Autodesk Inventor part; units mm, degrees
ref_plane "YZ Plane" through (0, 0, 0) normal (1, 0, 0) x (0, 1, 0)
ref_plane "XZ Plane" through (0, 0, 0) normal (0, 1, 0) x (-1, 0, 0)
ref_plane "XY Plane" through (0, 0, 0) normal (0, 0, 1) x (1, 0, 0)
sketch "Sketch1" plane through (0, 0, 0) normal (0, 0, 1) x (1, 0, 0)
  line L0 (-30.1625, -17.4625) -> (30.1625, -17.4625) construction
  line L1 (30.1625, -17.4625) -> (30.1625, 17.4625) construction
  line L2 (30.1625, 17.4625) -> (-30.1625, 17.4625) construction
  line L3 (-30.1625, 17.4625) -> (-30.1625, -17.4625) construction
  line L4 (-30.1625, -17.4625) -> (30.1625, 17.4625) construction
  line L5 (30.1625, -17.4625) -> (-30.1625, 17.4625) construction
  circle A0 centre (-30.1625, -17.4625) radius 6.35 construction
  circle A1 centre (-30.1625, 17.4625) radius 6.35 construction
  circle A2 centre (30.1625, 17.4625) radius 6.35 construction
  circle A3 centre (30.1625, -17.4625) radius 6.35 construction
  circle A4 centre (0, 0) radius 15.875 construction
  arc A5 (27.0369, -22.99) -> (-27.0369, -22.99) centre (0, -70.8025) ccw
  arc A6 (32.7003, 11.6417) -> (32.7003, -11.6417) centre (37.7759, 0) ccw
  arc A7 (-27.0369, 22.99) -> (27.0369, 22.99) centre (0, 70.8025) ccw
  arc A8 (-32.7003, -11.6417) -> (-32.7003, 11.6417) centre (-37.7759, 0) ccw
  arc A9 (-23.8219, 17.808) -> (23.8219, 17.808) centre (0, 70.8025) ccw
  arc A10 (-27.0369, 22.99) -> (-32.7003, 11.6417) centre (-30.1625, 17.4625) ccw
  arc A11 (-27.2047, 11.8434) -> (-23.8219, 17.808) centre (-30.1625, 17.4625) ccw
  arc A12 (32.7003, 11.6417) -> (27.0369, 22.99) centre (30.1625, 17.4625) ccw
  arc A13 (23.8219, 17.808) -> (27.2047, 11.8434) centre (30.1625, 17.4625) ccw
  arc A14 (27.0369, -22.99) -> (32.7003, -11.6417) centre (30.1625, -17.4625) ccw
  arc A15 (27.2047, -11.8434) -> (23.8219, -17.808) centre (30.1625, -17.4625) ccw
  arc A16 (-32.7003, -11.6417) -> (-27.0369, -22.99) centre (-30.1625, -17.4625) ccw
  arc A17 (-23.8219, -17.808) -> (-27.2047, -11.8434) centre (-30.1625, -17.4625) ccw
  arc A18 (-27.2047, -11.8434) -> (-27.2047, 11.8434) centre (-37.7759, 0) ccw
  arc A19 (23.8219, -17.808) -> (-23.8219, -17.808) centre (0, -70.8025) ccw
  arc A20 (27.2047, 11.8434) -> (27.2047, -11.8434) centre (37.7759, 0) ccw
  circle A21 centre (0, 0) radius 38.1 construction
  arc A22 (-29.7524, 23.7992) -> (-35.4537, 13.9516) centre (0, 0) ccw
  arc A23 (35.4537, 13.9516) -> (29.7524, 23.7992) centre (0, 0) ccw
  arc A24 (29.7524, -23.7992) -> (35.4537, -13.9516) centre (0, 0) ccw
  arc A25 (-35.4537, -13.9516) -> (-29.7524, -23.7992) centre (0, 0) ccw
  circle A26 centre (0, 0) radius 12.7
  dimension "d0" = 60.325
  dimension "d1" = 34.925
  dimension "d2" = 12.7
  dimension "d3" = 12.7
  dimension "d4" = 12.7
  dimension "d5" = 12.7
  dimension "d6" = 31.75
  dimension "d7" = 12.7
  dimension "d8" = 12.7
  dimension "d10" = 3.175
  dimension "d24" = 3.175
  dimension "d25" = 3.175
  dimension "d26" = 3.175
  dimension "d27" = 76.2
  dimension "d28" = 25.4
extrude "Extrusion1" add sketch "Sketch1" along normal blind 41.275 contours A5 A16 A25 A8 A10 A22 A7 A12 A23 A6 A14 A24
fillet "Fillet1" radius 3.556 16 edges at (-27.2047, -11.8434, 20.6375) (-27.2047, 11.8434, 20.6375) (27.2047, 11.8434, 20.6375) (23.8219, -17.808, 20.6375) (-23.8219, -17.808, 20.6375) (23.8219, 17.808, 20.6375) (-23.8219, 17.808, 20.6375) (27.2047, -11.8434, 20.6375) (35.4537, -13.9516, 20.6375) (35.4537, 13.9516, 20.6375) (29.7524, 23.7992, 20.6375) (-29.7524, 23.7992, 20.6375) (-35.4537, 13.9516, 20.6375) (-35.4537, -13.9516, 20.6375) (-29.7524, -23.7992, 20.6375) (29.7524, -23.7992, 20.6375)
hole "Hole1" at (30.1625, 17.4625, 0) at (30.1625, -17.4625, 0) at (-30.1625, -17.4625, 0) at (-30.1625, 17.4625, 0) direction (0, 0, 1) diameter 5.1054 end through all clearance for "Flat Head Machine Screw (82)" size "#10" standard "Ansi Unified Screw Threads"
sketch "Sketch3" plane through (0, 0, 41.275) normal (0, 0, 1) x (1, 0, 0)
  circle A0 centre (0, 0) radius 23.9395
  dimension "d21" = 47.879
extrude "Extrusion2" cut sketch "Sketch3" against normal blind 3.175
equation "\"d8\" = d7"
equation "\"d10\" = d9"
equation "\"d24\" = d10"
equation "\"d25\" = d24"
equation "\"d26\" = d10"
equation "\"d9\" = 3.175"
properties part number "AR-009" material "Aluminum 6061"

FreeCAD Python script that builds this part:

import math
import FreeCAD as App
import Part
import Sketcher

V = App.Vector
Q = App.Units.Quantity


def edges_at(feature, points):
    """Names of the edges that pass closest to the given points."""
    edges = feature.Shape.Edges
    near = lambda p: min(range(len(edges)), key=lambda i: edges[i].distToShape(Part.Vertex(*p))[0])
    return sorted({f"Edge{near(p) + 1}" for p in points})

doc = App.newDocument("Part")
body = doc.addObject("PartDesign::Body", "Body")

# Sketch on XY plane
sketch1 = body.newObject("Sketcher::SketchObject", "Sketch")
sketch1.AttachmentSupport = (doc.getObject("XY_Plane"), [""])
sketch1.MapMode = "FlatFace"
sketch1.addGeometry([
    Part.ArcOfCircle(Part.Circle(V(0, -70.8025, 0), V(0, 0, 1), 54.92749), math.radians(60.512811), math.radians(119.487189)),  # 0
    Part.ArcOfCircle(Part.Circle(V(30.1625, -17.4625, 0), V(0, 0, 1), 6.35), math.radians(-119.486579), math.radians(-93.702917)),  # 1
    Part.ArcOfCircle(Part.Circle(V(-0.002306, 0.001577, 0), V(0, 0, 1), 38.102749), math.radians(-38.6563), math.radians(-21.481371)),  # 2
    Part.ArcOfCircle(Part.Circle(V(30.1625, -17.4625, 0), V(0, 0, 1), 6.35), math.radians(33.565693), math.radians(66.443367)),  # 3
    Part.ArcOfCircle(Part.Circle(V(37.7759, 0, 0), V(0, 0, 1), 12.700035), math.radians(113.556452), math.radians(246.443548)),  # 4
    Part.ArcOfCircle(Part.Circle(V(30.1625, 17.4625, 0), V(0, 0, 1), 6.35), math.radians(-66.443367), math.radians(-33.565693)),  # 5
    Part.ArcOfCircle(Part.Circle(V(0.002515, 0.001215, 0), V(0, 0, 1), 38.097241), math.radians(21.48012), math.radians(38.657551)),  # 6
    Part.ArcOfCircle(Part.Circle(V(30.1625, 17.4625, 0), V(0, 0, 1), 6.35), math.radians(93.702917), math.radians(119.486579)),  # 7
    Part.ArcOfCircle(Part.Circle(V(0, 70.8025, 0), V(0, 0, 1), 54.92749), math.radians(-119.487189), math.radians(-60.512811)),  # 8
    Part.ArcOfCircle(Part.Circle(V(-30.1625, 17.4625, 0), V(0, 0, 1), 6.35), math.radians(60.513421), math.radians(86.297083)),  # 9
    Part.ArcOfCircle(Part.Circle(V(0.002306, -0.001577, 0), V(0, 0, 1), 38.102749), math.radians(141.3437), math.radians(158.518629)),  # 10
    Part.ArcOfCircle(Part.Circle(V(-30.1625, 17.4625, 0), V(0, 0, 1), 6.35), math.radians(-146.434307), math.radians(-113.556633)),  # 11
    Part.ArcOfCircle(Part.Circle(V(-37.7759, 0, 0), V(0, 0, 1), 12.700035), math.radians(-66.443548), math.radians(66.443548)),  # 12
    Part.ArcOfCircle(Part.Circle(V(-30.1625, -17.4625, 0), V(0, 0, 1), 6.35), math.radians(113.556633), math.radians(146.434307)),  # 13
    Part.ArcOfCircle(Part.Circle(V(-0.002515, -0.001215, 0), V(0, 0, 1), 38.097241), math.radians(-158.51988), math.radians(-141.342449)),  # 14
    Part.ArcOfCircle(Part.Circle(V(-30.1625, -17.4625, 0), V(0, 0, 1), 6.35), math.radians(-86.297083), math.radians(-60.513421)),  # 15
    Part.ArcOfCircle(Part.Circle(V(-30.1625, 17.4625, 0), V(0, 0, 1), 6.35), math.radians(-62.238434), math.radians(3.118969)),  # 16
    Part.ArcOfCircle(Part.Circle(V(0, 70.8025, 0), V(0, 0, 1), 58.102495), math.radians(-114.204702), math.radians(-65.795298)),  # 17
    Part.ArcOfCircle(Part.Circle(V(30.1625, 17.4625, 0), V(0, 0, 1), 6.350006), math.radians(176.881031), math.radians(242.238434)),  # 18
    Part.ArcOfCircle(Part.Circle(V(37.7759, 0, 0), V(0, 0, 1), 15.875024), math.radians(131.751512), math.radians(228.248488)),  # 19
    Part.ArcOfCircle(Part.Circle(V(30.1625, -17.4625, 0), V(0, 0, 1), 6.35), math.radians(117.761566), math.radians(183.118969)),  # 20
    Part.ArcOfCircle(Part.Circle(V(0, -70.8025, 0), V(0, 0, 1), 58.102495), math.radians(65.795298), math.radians(114.204702)),  # 21
    Part.ArcOfCircle(Part.Circle(V(-30.1625, -17.4625, 0), V(0, 0, 1), 6.350006), math.radians(-3.118969), math.radians(62.238434)),  # 22
    Part.ArcOfCircle(Part.Circle(V(-37.7759, 0, 0), V(0, 0, 1), 15.875024), math.radians(-48.248488), math.radians(48.248488)),  # 23
], False)
sketch1.addConstraint([
    Sketcher.Constraint("Tangent", 0, 1, 1, 1),
    Sketcher.Constraint("Coincident", 1, 2, 2, 1),
    Sketcher.Constraint("Coincident", 2, 2, 3, 1),
    Sketcher.Constraint("Tangent", 3, 2, 4, 2),
    Sketcher.Constraint("Tangent", 4, 1, 5, 1),
    Sketcher.Constraint("Coincident", 5, 2, 6, 1),
    Sketcher.Constraint("Coincident", 6, 2, 7, 1),
    Sketcher.Constraint("Tangent", 7, 2, 8, 2),
    Sketcher.Constraint("Tangent", 8, 1, 9, 1),
    Sketcher.Constraint("Coincident", 9, 2, 10, 1),
    Sketcher.Constraint("Coincident", 10, 2, 11, 1),
    Sketcher.Constraint("Tangent", 11, 2, 12, 2),
    Sketcher.Constraint("Tangent", 12, 1, 13, 1),
    Sketcher.Constraint("Coincident", 13, 2, 14, 1),
    Sketcher.Constraint("Coincident", 14, 2, 15, 1),
    Sketcher.Constraint("Tangent", 15, 2, 0, 2),
    Sketcher.Constraint("Coincident", 16, 2, 17, 1),
    Sketcher.Constraint("Coincident", 17, 2, 18, 1),
    Sketcher.Constraint("Coincident", 18, 2, 19, 1),
    Sketcher.Constraint("Coincident", 19, 2, 20, 1),
    Sketcher.Constraint("Coincident", 20, 2, 21, 1),
    Sketcher.Constraint("Coincident", 21, 2, 22, 1),
    Sketcher.Constraint("Coincident", 22, 2, 23, 1),
    Sketcher.Constraint("Coincident", 23, 2, 16, 1),
    Sketcher.Constraint("Coincident", 3, 3, 1, 3),
    Sketcher.Constraint("Coincident", 7, 3, 5, 3),
    Sketcher.Constraint("Coincident", 11, 3, 9, 3),
    Sketcher.Constraint("Coincident", 15, 3, 13, 3),
    Sketcher.Constraint("Coincident", 16, 3, 9, 3),
    Sketcher.Constraint("Coincident", 17, 3, 8, 3),
    Sketcher.Constraint("Coincident", 18, 3, 5, 3),
    Sketcher.Constraint("Coincident", 19, 3, 4, 3),
    Sketcher.Constraint("Coincident", 20, 3, 1, 3),
    Sketcher.Constraint("Coincident", 21, 3, 0, 3),
    Sketcher.Constraint("Coincident", 22, 3, 13, 3),
    Sketcher.Constraint("Coincident", 23, 3, 12, 3),
    Sketcher.Constraint("Equal", 1, 3),
    Sketcher.Constraint("Equal", 3, 5),
    Sketcher.Constraint("Equal", 5, 7),
    Sketcher.Constraint("Equal", 0, 8),
    Sketcher.Constraint("Equal", 7, 9),
    Sketcher.Constraint("Equal", 2, 10),
    Sketcher.Constraint("Equal", 9, 11),
    Sketcher.Constraint("Equal", 4, 12),
    Sketcher.Constraint("Equal", 11, 13),
    Sketcher.Constraint("Equal", 6, 14),
    Sketcher.Constraint("Equal", 13, 15),
    Sketcher.Constraint("Equal", 15, 16),
    Sketcher.Constraint("Equal", 16, 18),
    Sketcher.Constraint("Equal", 18, 20),
    Sketcher.Constraint("Equal", 17, 21),
    Sketcher.Constraint("Equal", 20, 22),
    Sketcher.Constraint("Equal", 19, 23),
    Sketcher.Constraint("Symmetric", 0, 3, 8, 3, -1, 1),
    Sketcher.Constraint("Symmetric", 2, 3, 10, 3, -1, 1),
    Sketcher.Constraint("Symmetric", 4, 3, 12, 3, -1, 1),
    Sketcher.Constraint("Symmetric", 6, 3, 14, 3, -1, 1),
    Sketcher.Constraint("Symmetric", 5, 3, 9, 3, -2),
    Sketcher.Constraint("Horizontal", 6, 2, 9, 2),
    Sketcher.Constraint("Horizontal", 5, 2, 10, 2),
    Sketcher.Constraint("Radius", 4, Q("0.5 in")),
    Sketcher.Constraint("Radius", 1, Q("0.25 in")),
    Sketcher.Constraint("Radius", 19, Q("0.625 in")),
    Sketcher.Constraint("DistanceY", 1, 3, 5, 3, Q("1.375 in")),
    Sketcher.Constraint("DistanceX", 9, 3, 5, 3, Q("2.375 in")),
    Sketcher.Constraint("DistanceX", 10, 3, 6, 3, Q("0 in")),
    Sketcher.Constraint("Radius", 0, Q("2.1625 in")),
    Sketcher.Constraint("Radius", 2, Q("1.5001 in")),
    Sketcher.Constraint("Radius", 6, Q("1.4999 in")),
    Sketcher.Constraint("Radius", 17, Q("2.2875 in")),
    Sketcher.Constraint("DistanceY", 2, 2, 19, 2, Q("0.083 in")),
])
pad1 = body.newObject("PartDesign::Pad", "Pad")
pad1.Profile = sketch1
pad1.Length = Q("1.625 in")
doc.recompute()

fillet = body.newObject("PartDesign::Fillet", "Fillet")
fillet.Base = (pad1, edges_at(pad1, [
    (-27.205, -11.843, 20.637),
    (-27.205, 11.843, 20.637),
    (27.205, 11.843, 20.637),
    (23.822, -17.808, 20.637),
    (-23.822, -17.808, 20.637),
    (23.822, 17.808, 20.637),
    (-23.822, 17.808, 20.637),
    (27.205, -11.843, 20.637),
    (35.454, -13.952, 20.637),
    (35.454, 13.952, 20.637),
    (29.752, 23.799, 20.637),
    (-29.752, 23.799, 20.637),
    (-35.454, 13.952, 20.637),
    (-35.454, -13.952, 20.637),
    (-29.752, -23.799, 20.637),
    (29.752, -23.799, 20.637),
]))
fillet.Radius = Q("0.14 in")

# Sketch on XY plane
sketch2 = body.newObject("Sketcher::SketchObject", "Sketch001")
sketch2.AttachmentSupport = (doc.getObject("XY_Plane"), [""])
sketch2.MapMode = "FlatFace"
sketch2.addGeometry([
    Part.Circle(V(30.1625, 17.4625, 0), V(0, 0, 1), 2.5527),
    Part.Circle(V(30.1625, -17.4625, 0), V(0, 0, 1), 2.5527),
    Part.Circle(V(-30.1625, -17.4625, 0), V(0, 0, 1), 2.5527),
    Part.Circle(V(-30.1625, 17.4625, 0), V(0, 0, 1), 2.5527),
], False)
sketch2.addConstraint([
    Sketcher.Constraint("Equal", 0, 1),
    Sketcher.Constraint("Equal", 1, 2),
    Sketcher.Constraint("Equal", 2, 3),
    Sketcher.Constraint("Symmetric", 0, 3, 2, 3, -1, 1),
    Sketcher.Constraint("Symmetric", 1, 3, 3, 3, -1, 1),
    Sketcher.Constraint("Symmetric", 1, 3, 2, 3, -2),
    Sketcher.Constraint("Diameter", 0, Q("0.201 in")),
    Sketcher.Constraint("DistanceX", -1, 1, 0, 3, Q("1.1875 in")),
    Sketcher.Constraint("DistanceY", -1, 1, 0, 3, Q("0.6875 in")),
])
doc.recompute()
hole = body.newObject("PartDesign::Hole", "Hole")
hole.Profile = sketch2
hole.ThreadType = "None"
hole.Diameter = Q("0.201 in")
hole.DepthType = "ThroughAll"
hole.Reversed = True

# Sketch on XY plane
sketch3 = body.newObject("Sketcher::SketchObject", "Sketch002")
sketch3.AttachmentSupport = (doc.getObject("XY_Plane"), [""])
sketch3.MapMode = "FlatFace"
sketch3.AttachmentOffset = App.Placement(V(0, 0, 1.625 * 25.4), App.Rotation())
sketch3.addGeometry(Part.Circle(V(0, 0, 0), V(0, 0, 1), 23.9395), False)
sketch3.addConstraint([
    Sketcher.Constraint("Coincident", 0, 3, -1, 1),
    Sketcher.Constraint("Diameter", 0, Q("1.885 in")),
])
pocket1 = body.newObject("PartDesign::Pocket", "Pocket")
pocket1.Profile = sketch3
pocket1.Length = Q("0.125 in")

doc.recompute()
